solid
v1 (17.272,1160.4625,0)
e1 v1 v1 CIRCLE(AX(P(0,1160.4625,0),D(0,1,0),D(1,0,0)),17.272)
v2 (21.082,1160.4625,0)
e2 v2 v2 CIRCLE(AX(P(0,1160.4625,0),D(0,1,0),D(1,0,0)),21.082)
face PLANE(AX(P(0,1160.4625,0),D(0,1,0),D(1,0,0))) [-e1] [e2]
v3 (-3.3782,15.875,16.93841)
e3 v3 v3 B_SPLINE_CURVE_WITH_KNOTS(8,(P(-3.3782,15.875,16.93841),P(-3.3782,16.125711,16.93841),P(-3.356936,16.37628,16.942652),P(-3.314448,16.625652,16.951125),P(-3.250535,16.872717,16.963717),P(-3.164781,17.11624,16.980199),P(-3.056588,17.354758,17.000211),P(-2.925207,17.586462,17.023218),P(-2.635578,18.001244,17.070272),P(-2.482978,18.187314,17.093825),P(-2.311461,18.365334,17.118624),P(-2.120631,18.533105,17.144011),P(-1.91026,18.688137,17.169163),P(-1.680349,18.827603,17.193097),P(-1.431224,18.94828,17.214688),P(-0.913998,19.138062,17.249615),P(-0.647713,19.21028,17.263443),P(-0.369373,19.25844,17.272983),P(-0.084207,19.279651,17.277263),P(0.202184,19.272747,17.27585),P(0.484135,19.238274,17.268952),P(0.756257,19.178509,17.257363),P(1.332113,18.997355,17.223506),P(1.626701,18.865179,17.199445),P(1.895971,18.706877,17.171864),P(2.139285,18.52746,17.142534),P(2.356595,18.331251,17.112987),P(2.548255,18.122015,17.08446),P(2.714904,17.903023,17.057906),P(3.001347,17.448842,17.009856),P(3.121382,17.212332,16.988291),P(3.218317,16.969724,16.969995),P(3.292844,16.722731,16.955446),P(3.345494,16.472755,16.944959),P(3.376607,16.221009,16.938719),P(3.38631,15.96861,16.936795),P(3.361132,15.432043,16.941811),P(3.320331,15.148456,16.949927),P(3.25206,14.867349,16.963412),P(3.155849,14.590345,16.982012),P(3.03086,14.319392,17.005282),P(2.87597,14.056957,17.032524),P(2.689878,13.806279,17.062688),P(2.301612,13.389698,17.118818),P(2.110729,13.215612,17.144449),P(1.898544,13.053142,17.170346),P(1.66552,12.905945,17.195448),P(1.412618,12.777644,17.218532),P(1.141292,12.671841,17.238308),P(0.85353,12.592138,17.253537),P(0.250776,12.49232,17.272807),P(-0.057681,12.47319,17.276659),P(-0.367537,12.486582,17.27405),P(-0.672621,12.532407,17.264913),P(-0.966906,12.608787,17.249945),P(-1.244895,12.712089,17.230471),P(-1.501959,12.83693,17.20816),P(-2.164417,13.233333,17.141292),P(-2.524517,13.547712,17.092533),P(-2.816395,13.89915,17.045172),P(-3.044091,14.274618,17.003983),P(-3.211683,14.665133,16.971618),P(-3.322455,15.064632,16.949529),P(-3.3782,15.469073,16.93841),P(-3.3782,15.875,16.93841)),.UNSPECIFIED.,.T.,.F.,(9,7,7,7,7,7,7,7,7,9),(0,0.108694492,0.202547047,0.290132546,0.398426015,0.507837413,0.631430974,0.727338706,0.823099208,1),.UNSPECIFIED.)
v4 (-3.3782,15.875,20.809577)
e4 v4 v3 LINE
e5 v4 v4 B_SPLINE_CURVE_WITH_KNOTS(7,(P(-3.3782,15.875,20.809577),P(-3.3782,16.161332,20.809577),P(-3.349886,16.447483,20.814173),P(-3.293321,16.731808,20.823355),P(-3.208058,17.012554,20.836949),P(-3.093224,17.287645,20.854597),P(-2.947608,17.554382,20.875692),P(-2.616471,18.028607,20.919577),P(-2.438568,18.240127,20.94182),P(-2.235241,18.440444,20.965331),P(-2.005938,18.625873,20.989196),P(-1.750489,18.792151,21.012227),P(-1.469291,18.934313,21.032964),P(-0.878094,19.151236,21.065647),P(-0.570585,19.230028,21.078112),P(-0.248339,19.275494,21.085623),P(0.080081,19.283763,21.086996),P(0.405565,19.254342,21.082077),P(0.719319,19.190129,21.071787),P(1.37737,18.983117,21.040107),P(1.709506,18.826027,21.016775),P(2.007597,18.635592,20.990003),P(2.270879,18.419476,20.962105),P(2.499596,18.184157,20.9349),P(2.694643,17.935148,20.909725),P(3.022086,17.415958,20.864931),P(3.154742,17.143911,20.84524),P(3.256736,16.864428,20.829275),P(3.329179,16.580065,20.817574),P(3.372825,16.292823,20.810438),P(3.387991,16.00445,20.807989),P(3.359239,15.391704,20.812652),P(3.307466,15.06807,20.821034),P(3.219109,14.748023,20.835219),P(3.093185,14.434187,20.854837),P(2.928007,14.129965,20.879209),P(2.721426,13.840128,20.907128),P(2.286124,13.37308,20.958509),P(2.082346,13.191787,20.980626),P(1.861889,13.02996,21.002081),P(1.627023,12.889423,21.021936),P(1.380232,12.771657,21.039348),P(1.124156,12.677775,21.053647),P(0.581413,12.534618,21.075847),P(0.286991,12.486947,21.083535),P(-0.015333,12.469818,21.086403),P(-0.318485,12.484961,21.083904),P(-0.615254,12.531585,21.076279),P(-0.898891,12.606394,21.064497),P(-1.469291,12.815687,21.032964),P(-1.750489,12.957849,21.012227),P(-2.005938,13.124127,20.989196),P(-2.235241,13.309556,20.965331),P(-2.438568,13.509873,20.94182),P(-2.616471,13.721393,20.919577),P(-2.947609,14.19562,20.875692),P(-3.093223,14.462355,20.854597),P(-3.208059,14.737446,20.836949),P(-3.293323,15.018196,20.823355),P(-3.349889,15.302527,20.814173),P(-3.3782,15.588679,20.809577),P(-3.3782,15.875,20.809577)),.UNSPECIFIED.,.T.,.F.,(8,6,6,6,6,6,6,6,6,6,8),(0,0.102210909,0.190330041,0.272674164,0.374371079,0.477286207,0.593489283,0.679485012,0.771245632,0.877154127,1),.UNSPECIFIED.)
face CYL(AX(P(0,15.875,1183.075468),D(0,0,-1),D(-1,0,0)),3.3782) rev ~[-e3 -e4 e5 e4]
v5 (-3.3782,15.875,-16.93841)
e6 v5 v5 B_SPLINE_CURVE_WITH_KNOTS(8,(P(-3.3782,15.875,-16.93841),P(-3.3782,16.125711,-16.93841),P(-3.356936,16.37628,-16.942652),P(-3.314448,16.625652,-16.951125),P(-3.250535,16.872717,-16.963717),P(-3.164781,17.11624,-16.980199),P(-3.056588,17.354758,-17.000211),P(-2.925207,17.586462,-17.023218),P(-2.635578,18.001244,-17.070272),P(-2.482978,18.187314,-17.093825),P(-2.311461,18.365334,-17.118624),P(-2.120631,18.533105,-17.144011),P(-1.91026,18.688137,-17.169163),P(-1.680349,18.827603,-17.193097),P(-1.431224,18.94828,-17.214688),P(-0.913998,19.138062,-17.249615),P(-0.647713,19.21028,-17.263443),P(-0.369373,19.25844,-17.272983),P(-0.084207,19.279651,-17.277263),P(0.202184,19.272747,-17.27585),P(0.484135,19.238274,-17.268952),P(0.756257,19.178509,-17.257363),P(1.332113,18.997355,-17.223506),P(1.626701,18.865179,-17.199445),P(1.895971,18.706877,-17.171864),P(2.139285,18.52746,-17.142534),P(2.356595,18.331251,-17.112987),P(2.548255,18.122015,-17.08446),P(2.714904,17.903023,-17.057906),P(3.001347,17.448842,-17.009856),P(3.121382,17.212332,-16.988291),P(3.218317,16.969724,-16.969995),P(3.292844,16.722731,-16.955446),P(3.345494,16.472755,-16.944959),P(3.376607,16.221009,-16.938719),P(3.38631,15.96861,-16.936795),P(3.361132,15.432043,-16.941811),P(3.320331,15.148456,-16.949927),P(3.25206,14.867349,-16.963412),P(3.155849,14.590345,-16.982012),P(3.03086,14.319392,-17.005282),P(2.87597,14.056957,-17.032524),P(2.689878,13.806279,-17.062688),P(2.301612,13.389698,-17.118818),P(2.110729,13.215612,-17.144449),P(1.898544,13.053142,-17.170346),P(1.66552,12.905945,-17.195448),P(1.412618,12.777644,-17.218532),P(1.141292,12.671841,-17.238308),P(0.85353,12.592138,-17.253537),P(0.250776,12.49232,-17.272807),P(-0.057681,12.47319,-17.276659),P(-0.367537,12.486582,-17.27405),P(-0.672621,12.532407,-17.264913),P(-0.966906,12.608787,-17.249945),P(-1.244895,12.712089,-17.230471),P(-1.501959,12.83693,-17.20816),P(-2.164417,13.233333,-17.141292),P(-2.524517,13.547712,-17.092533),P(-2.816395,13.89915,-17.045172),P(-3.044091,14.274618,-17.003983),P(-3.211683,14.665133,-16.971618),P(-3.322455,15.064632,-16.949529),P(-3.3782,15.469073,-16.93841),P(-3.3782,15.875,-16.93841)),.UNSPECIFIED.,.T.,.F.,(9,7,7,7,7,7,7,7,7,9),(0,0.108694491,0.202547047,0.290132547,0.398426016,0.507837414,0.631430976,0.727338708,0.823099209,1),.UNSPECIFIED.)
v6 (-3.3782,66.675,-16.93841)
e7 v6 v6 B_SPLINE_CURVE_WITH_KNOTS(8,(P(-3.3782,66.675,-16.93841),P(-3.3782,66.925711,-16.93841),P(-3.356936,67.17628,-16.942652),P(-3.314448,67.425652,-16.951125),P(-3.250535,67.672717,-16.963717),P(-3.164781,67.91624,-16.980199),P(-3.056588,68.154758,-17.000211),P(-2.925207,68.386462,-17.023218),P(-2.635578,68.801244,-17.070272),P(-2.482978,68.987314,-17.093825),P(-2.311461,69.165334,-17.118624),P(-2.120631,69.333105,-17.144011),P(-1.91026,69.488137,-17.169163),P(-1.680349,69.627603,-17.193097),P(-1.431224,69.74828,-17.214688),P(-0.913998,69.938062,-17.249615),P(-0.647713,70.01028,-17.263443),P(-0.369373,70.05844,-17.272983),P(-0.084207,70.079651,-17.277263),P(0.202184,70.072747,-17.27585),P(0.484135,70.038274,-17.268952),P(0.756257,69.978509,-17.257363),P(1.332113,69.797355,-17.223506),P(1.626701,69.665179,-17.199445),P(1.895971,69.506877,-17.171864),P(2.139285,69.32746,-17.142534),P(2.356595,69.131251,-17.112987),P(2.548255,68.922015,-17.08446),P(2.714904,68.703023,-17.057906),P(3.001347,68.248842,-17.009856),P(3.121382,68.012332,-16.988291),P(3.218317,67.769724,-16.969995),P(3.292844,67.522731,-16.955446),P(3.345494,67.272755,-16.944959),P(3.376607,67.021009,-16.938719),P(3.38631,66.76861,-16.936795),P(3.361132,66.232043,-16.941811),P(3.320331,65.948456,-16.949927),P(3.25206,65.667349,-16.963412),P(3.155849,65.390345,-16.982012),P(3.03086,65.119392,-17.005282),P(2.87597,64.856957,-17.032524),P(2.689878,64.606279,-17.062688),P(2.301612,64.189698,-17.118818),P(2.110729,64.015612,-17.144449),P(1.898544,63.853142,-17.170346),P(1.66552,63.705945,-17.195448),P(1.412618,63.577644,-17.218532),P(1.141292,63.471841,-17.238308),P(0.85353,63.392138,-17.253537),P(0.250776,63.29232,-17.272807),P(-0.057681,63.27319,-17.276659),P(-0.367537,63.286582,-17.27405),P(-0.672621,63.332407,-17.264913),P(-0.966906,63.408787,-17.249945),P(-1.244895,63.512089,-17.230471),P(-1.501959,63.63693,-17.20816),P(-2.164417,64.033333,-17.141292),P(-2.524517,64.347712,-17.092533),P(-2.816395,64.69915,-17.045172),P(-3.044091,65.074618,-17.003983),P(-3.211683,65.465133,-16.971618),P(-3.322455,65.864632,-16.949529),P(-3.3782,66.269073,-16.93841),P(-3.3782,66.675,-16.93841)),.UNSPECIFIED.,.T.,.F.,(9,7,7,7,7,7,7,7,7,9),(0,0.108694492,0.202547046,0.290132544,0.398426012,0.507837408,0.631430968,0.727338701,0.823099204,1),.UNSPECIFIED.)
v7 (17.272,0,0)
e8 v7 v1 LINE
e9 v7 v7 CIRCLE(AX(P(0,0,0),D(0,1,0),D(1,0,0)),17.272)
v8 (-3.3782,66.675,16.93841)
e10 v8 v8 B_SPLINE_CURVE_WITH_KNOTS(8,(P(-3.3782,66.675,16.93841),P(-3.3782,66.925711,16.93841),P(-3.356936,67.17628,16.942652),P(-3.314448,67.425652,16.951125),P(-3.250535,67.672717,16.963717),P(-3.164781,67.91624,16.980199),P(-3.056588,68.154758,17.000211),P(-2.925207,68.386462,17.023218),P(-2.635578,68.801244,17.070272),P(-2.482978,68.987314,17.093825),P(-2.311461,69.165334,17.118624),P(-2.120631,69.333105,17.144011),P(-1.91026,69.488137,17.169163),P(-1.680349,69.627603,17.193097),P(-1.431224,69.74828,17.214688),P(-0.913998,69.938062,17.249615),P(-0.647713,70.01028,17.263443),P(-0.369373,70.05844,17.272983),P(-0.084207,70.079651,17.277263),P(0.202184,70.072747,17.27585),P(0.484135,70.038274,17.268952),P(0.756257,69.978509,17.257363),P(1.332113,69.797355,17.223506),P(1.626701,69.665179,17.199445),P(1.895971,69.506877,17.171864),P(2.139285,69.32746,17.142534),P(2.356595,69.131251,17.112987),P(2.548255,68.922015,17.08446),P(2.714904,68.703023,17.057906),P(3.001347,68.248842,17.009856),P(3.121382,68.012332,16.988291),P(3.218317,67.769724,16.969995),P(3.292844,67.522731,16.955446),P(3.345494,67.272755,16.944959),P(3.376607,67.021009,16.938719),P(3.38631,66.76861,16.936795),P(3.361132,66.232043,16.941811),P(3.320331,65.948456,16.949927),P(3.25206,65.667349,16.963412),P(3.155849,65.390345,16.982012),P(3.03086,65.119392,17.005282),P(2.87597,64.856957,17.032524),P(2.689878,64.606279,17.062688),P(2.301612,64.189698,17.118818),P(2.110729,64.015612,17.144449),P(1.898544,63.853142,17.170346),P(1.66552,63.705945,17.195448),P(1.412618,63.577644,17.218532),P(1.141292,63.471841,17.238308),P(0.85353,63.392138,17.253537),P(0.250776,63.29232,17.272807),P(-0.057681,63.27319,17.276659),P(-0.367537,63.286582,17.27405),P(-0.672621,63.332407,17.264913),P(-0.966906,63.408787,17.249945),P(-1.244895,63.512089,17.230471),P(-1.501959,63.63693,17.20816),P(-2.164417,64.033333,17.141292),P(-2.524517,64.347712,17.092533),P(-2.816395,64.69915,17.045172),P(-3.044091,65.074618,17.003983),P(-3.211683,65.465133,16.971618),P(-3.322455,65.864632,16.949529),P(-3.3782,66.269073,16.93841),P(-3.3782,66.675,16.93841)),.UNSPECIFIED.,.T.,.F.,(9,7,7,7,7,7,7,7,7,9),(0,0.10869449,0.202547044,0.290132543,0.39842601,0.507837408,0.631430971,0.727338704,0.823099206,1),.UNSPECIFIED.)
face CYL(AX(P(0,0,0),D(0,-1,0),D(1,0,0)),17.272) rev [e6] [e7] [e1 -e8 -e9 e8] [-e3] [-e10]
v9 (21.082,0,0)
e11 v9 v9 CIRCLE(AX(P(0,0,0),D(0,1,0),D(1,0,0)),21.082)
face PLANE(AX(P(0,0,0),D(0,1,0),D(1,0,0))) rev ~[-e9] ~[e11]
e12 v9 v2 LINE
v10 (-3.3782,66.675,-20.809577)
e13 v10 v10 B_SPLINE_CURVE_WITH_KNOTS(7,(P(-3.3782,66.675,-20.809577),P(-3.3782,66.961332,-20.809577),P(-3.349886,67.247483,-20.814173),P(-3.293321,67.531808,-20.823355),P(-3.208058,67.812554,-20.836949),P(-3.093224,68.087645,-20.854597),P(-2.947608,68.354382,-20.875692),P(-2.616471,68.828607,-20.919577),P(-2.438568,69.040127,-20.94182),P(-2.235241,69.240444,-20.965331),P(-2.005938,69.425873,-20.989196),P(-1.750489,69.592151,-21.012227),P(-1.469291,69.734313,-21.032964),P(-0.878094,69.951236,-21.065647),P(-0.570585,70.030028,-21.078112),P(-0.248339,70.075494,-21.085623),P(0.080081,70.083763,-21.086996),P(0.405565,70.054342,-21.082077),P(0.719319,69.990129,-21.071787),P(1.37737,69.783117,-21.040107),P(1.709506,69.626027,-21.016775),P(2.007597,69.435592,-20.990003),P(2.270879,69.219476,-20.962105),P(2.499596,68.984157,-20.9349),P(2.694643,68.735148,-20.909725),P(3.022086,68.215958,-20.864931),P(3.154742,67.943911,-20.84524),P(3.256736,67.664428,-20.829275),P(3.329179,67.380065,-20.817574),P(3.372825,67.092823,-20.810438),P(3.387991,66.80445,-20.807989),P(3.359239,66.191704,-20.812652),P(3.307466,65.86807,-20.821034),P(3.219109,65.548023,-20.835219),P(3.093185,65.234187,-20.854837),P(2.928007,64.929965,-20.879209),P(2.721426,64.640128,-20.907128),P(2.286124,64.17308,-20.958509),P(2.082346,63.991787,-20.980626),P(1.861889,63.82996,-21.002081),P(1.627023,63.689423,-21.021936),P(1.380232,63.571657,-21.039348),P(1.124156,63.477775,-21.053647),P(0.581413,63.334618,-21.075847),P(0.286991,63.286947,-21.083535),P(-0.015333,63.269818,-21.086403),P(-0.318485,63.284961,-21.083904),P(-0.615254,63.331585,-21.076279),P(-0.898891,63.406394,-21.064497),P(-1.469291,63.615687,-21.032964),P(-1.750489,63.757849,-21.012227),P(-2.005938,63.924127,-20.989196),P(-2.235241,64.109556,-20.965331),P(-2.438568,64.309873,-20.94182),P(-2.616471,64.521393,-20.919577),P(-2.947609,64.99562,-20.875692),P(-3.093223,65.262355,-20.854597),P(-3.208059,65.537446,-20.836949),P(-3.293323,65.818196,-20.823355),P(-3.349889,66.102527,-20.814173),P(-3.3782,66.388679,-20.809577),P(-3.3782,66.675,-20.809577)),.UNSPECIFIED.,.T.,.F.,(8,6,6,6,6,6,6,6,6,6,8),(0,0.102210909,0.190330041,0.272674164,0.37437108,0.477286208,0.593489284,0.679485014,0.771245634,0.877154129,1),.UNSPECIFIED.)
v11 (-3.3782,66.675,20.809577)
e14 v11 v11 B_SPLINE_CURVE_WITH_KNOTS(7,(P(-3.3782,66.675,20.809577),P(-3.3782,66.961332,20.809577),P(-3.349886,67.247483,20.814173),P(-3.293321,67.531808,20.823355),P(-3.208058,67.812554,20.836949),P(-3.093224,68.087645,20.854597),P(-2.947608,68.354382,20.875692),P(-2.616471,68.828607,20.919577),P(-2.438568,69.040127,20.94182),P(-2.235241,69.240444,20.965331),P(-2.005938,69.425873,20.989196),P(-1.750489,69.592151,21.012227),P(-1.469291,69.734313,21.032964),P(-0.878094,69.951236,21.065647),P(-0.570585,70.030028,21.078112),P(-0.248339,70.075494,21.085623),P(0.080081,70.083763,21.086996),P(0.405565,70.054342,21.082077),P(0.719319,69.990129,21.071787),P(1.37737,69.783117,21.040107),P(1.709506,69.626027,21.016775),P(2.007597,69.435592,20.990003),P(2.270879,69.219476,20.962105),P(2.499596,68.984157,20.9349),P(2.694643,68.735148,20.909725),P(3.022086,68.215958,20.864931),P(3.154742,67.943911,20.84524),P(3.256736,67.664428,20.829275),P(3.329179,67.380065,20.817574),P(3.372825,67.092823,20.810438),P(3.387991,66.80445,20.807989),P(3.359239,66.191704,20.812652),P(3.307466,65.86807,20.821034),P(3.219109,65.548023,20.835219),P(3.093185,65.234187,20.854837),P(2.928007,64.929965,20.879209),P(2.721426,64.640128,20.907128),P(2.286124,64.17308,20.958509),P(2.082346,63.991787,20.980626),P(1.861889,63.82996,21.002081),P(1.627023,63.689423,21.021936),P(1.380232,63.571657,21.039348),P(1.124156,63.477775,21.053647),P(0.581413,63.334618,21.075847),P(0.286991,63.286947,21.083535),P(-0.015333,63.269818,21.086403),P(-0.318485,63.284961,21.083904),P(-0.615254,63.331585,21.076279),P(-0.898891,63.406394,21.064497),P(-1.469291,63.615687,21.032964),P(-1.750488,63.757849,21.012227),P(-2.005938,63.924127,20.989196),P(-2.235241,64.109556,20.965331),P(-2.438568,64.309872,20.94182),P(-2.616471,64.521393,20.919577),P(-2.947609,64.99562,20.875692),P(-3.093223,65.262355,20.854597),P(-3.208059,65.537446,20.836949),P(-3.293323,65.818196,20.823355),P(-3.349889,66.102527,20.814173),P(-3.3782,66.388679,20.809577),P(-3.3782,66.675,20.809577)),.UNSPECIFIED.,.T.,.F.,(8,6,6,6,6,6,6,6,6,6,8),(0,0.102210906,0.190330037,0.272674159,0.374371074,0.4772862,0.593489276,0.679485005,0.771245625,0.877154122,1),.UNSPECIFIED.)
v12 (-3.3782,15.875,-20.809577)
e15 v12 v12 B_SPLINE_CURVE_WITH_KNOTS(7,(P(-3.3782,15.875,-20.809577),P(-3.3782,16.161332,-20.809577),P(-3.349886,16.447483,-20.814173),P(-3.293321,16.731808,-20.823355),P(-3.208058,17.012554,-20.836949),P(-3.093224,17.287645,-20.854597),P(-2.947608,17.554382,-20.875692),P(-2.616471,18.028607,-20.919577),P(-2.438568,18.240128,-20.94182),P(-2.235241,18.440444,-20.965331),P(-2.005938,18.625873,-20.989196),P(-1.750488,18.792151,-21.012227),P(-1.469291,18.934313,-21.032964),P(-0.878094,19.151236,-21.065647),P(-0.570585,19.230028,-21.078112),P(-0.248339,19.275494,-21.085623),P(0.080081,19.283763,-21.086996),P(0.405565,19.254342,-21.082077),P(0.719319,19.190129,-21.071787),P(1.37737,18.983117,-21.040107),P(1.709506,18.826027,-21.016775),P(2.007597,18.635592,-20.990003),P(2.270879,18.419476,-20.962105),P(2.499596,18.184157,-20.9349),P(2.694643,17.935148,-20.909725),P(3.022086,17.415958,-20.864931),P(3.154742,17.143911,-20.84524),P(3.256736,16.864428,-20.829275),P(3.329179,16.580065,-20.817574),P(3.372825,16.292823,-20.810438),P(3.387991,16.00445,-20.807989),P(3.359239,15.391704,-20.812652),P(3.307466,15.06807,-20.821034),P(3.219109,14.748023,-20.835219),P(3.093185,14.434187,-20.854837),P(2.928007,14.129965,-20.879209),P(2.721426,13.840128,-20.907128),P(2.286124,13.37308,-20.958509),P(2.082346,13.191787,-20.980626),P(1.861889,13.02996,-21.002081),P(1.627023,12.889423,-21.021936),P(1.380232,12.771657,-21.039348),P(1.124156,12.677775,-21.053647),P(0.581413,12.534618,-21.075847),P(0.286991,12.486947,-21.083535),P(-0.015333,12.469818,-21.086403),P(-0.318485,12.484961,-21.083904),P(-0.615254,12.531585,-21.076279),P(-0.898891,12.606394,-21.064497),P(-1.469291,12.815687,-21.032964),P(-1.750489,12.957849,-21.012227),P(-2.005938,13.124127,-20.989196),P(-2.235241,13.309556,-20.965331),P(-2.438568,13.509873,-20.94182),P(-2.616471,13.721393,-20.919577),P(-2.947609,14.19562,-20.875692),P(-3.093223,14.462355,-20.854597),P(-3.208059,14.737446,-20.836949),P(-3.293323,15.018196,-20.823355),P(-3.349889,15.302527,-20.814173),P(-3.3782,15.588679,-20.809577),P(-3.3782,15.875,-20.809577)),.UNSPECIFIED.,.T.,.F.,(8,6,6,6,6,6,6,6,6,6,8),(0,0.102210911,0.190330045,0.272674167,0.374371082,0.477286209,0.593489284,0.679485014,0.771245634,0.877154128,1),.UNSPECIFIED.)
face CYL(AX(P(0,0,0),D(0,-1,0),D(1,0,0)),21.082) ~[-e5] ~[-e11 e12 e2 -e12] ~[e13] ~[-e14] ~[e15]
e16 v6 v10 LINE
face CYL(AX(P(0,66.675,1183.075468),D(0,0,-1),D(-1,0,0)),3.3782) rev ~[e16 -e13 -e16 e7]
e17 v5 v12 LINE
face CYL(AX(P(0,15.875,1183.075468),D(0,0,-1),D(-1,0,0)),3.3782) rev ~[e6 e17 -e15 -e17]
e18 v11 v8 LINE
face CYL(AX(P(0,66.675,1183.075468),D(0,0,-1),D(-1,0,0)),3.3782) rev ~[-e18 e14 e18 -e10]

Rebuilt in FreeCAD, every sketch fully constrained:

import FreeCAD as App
import Part
import Sketcher

V = App.Vector
Q = App.Units.Quantity

doc = App.newDocument("Part")
params = doc.addObject("Spreadsheet::Sheet", "Params")
for row, (alias, value) in enumerate([
    ("sketch1_diameter", "1.66 in"),
    ("sketch1_diameter2", "1.36 in"),
    ("pad1_length", "45.6875 in"),
    ("sketch2_diameter", "0.266 in"),
    ("hole_diameter", "0.266 in"),
], start=1):
    params.set(f"A{row}", alias)
    params.set(f"B{row}", "=" + value)
    params.setAlias(f"B{row}", alias)

body = doc.addObject("PartDesign::Body", "Body")

# Sketch on XZ plane
sketch1 = doc.addObject("Sketcher::SketchObject", "Sketch")
body.addObject(sketch1)
sketch1.AttachmentSupport = (doc.XZ_Plane, [""])
sketch1.MapMode = "FlatFace"
sketch1.addGeometry([
    Part.Circle(V(0, 0, 0), V(0, 0, 1), 21),
    Part.Circle(V(0, 0, 0), V(0, 0, 1), 17),
], False)
sketch1.addConstraint([
    Sketcher.Constraint("Coincident", 0, 3, -1, 1),
    Sketcher.Constraint("Coincident", 1, 3, -1, 1),
    Sketcher.Constraint("Diameter", 0, Q("1.66 in")),
    Sketcher.Constraint("Diameter", 1, Q("1.36 in")),
])
sketch1.setExpression("Constraints[2]", "Params.sketch1_diameter")
sketch1.setExpression("Constraints[3]", "Params.sketch1_diameter2")
pad1 = doc.addObject("PartDesign::Pad", "Pad")
body.addObject(pad1)
pad1.Profile = sketch1
pad1.setExpression("Length", "Params.pad1_length")
pad1.Reversed = True

# Sketch on XY plane
sketch2 = doc.addObject("Sketcher::SketchObject", "Sketch001")
body.addObject(sketch2)
sketch2.AttachmentSupport = (doc.XY_Plane, [""])
sketch2.MapMode = "FlatFace"
sketch2.AttachmentOffset = App.Placement(V(0, 0, 0.83 * 25.4), App.Rotation())
sketch2.addGeometry([
    Part.Circle(V(0, 15.9, 0), V(0, 0, 1), 3.4),
    Part.Circle(V(0, 66.7, 0), V(0, 0, 1), 3.4),
], False)
sketch2.addConstraint([
    Sketcher.Constraint("Equal", 0, 1),
    Sketcher.Constraint("PointOnObject", 0, 3, -2),
    Sketcher.Constraint("PointOnObject", 1, 3, -2),
    Sketcher.Constraint("Diameter", 0, Q("0.266 in")),
    Sketcher.Constraint("DistanceY", 0, 3, 1, 3, Q("2 in")),
    Sketcher.Constraint("DistanceY", -1, 1, 0, 3, Q("0.625 in")),
])
sketch2.setExpression("Constraints[3]", "Params.sketch2_diameter")
doc.recompute()
hole = doc.addObject("PartDesign::Hole", "Hole")
body.addObject(hole)
hole.Profile = sketch2
hole.ThreadType = "None"
hole.setExpression("Diameter", "Params.hole_diameter")
hole.DepthType = "ThroughAll"

doc.recompute()
